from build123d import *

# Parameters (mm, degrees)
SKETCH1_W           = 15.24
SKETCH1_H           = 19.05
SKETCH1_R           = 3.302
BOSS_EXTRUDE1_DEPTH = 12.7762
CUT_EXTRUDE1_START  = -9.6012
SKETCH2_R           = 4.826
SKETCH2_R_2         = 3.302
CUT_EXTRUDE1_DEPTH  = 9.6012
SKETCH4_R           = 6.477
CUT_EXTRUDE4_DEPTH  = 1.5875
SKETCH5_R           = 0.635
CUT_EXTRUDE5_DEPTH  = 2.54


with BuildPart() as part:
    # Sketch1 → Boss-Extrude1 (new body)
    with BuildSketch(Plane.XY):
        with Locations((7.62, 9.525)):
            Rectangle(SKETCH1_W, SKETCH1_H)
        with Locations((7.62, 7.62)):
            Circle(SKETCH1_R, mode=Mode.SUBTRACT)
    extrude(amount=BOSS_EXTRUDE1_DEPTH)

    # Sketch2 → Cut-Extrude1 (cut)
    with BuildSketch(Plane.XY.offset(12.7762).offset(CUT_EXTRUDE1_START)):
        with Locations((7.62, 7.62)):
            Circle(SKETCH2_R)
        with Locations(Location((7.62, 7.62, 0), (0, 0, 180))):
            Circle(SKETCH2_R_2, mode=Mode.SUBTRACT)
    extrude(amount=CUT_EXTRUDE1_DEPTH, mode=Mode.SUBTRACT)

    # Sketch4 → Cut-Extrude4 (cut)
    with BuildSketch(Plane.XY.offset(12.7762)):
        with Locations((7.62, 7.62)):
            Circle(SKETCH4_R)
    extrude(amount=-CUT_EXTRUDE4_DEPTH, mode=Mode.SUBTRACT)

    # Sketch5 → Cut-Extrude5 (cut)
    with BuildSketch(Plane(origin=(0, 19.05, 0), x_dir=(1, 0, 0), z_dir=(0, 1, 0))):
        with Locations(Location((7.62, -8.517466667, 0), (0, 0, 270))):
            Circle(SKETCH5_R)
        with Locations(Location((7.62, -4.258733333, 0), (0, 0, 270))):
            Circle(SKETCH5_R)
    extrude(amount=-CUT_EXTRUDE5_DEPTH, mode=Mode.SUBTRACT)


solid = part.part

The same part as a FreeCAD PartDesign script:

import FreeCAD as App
import Part
import Sketcher
Q = App.Units.Quantity

doc = App.newDocument("Part")
body = doc.addObject("PartDesign::Body", "Body")

# Sketch on XY plane
sketch1 = body.newObject("Sketcher::SketchObject", "Sketch")
sketch1.AttachmentSupport = (doc.getObject("XY_Plane"), [""])
sketch1.MapMode = "FlatFace"
sketch1.addGeometry(Part.LineSegment(App.Vector(0, 19.1, 0), App.Vector(0, 0, 0)), False)
sketch1.addGeometry(Part.LineSegment(App.Vector(0, 0, 0), App.Vector(15.2, 0, 0)), False)
sketch1.addGeometry(Part.LineSegment(App.Vector(15.2, 0, 0), App.Vector(15.2, 19.1, 0)), False)
sketch1.addGeometry(Part.LineSegment(App.Vector(15.2, 19.1, 0), App.Vector(0, 19.1, 0)), False)
sketch1.addGeometry(Part.Circle(App.Vector(7.6, 7.6, 0), App.Vector(0, 0, 1), 3.3), False)
sketch1.addConstraint(Sketcher.Constraint("Coincident", 0, 2, 1, 1))
sketch1.addConstraint(Sketcher.Constraint("Coincident", 1, 2, 2, 1))
sketch1.addConstraint(Sketcher.Constraint("Coincident", 2, 2, 3, 1))
sketch1.addConstraint(Sketcher.Constraint("Coincident", 3, 2, 0, 1))
sketch1.addConstraint(Sketcher.Constraint("Vertical", 0))
sketch1.addConstraint(Sketcher.Constraint("Horizontal", 1))
sketch1.addConstraint(Sketcher.Constraint("Vertical", 2))
sketch1.addConstraint(Sketcher.Constraint("Horizontal", 3))
sketch1.addConstraint(Sketcher.Constraint("Coincident", 0, 2, -1, 1))
sketch1.addConstraint(Sketcher.Constraint("Diameter", 4, Q("0.26 in")))
sketch1.addConstraint(Sketcher.Constraint("DistanceX", 1, 1, 1, 2, Q("0.6 in")))
sketch1.addConstraint(Sketcher.Constraint("DistanceY", 0, 2, 0, 1, Q("0.75 in")))
sketch1.addConstraint(Sketcher.Constraint("DistanceX", -1, 1, 4, 3, Q("0.3 in")))
sketch1.addConstraint(Sketcher.Constraint("DistanceY", -1, 1, 4, 3, Q("0.3 in")))
pad1 = body.newObject("PartDesign::Pad", "Pad")
pad1.Profile = sketch1
pad1.Length = Q("0.503 in")

# Sketch on XY plane
sketch2 = body.newObject("Sketcher::SketchObject", "Sketch001")
sketch2.AttachmentSupport = (doc.getObject("XY_Plane"), [""])
sketch2.MapMode = "FlatFace"
sketch2.AttachmentOffset = App.Placement(App.Vector(0, 0, 0.125 * 25.4), App.Rotation())
sketch2.addGeometry(Part.Circle(App.Vector(7.6, 7.6, 0), App.Vector(0, 0, 1), 4.8), False)
sketch2.addGeometry(Part.Circle(App.Vector(7.6, 7.6, 0), App.Vector(0, 0, 1), 3.3), False)
sketch2.addConstraint(Sketcher.Constraint("Coincident", 1, 3, 0, 3))
sketch2.addConstraint(Sketcher.Constraint("Diameter", 0, Q("0.38 in")))
sketch2.addConstraint(Sketcher.Constraint("Diameter", 1, Q("0.26 in")))
sketch2.addConstraint(Sketcher.Constraint("DistanceX", -1, 1, 0, 3, Q("0.3 in")))
sketch2.addConstraint(Sketcher.Constraint("DistanceY", -1, 1, 0, 3, Q("0.3 in")))
pocket1 = body.newObject("PartDesign::Pocket", "Pocket")
pocket1.Profile = sketch2
pocket1.Length = Q("0.378 in")
pocket1.Reversed = True

# Sketch on XY plane
sketch3 = body.newObject("Sketcher::SketchObject", "Sketch002")
sketch3.AttachmentSupport = (doc.getObject("XY_Plane"), [""])
sketch3.MapMode = "FlatFace"
sketch3.AttachmentOffset = App.Placement(App.Vector(0, 0, 0.503 * 25.4), App.Rotation())
sketch3.addGeometry(Part.Circle(App.Vector(8, 8, 0), App.Vector(0, 0, 1), 6), False)
sketch3.addConstraint(Sketcher.Constraint("Diameter", 0, Q("0.51 in")))
sketch3.addConstraint(Sketcher.Constraint("DistanceX", -1, 1, 0, 3, Q("0.3 in")))
sketch3.addConstraint(Sketcher.Constraint("DistanceY", -1, 1, 0, 3, Q("0.3 in")))
pocket2 = body.newObject("PartDesign::Pocket", "Pocket001")
pocket2.Profile = sketch3
pocket2.Length = Q("0.0625 in")

# Sketch on XZ plane
sketch4 = body.newObject("Sketcher::SketchObject", "Sketch003")
sketch4.AttachmentSupport = (doc.getObject("XZ_Plane"), [""])
sketch4.MapMode = "FlatFace"
sketch4.AttachmentOffset = App.Placement(App.Vector(0, 0, -0.75 * 25.4), App.Rotation())
sketch4.addGeometry(Part.Circle(App.Vector(7.6, 8.5, 0), App.Vector(0, 0, 1), 0.6), False)
sketch4.addGeometry(Part.Circle(App.Vector(7.6, 4.3, 0), App.Vector(0, 0, 1), 0.6), False)
sketch4.addConstraint(Sketcher.Constraint("Equal", 0, 1))
sketch4.addConstraint(Sketcher.Constraint("Vertical", 0, 3, 1, 3))
sketch4.addConstraint(Sketcher.Constraint("Diameter", 0, Q("0.05 in")))
sketch4.addConstraint(Sketcher.Constraint("DistanceX", -1, 1, 0, 3, Q("0.3 in")))
sketch4.addConstraint(Sketcher.Constraint("DistanceY", -1, 1, 0, 3, 8.517467))
sketch4.addConstraint(Sketcher.Constraint("DistanceY", -1, 1, 1, 3, 4.258733))
pocket3 = body.newObject("PartDesign::Pocket", "Pocket002")
pocket3.Profile = sketch4
pocket3.Length = Q("0.1 in")
pocket3.Reversed = True

doc.recompute()
